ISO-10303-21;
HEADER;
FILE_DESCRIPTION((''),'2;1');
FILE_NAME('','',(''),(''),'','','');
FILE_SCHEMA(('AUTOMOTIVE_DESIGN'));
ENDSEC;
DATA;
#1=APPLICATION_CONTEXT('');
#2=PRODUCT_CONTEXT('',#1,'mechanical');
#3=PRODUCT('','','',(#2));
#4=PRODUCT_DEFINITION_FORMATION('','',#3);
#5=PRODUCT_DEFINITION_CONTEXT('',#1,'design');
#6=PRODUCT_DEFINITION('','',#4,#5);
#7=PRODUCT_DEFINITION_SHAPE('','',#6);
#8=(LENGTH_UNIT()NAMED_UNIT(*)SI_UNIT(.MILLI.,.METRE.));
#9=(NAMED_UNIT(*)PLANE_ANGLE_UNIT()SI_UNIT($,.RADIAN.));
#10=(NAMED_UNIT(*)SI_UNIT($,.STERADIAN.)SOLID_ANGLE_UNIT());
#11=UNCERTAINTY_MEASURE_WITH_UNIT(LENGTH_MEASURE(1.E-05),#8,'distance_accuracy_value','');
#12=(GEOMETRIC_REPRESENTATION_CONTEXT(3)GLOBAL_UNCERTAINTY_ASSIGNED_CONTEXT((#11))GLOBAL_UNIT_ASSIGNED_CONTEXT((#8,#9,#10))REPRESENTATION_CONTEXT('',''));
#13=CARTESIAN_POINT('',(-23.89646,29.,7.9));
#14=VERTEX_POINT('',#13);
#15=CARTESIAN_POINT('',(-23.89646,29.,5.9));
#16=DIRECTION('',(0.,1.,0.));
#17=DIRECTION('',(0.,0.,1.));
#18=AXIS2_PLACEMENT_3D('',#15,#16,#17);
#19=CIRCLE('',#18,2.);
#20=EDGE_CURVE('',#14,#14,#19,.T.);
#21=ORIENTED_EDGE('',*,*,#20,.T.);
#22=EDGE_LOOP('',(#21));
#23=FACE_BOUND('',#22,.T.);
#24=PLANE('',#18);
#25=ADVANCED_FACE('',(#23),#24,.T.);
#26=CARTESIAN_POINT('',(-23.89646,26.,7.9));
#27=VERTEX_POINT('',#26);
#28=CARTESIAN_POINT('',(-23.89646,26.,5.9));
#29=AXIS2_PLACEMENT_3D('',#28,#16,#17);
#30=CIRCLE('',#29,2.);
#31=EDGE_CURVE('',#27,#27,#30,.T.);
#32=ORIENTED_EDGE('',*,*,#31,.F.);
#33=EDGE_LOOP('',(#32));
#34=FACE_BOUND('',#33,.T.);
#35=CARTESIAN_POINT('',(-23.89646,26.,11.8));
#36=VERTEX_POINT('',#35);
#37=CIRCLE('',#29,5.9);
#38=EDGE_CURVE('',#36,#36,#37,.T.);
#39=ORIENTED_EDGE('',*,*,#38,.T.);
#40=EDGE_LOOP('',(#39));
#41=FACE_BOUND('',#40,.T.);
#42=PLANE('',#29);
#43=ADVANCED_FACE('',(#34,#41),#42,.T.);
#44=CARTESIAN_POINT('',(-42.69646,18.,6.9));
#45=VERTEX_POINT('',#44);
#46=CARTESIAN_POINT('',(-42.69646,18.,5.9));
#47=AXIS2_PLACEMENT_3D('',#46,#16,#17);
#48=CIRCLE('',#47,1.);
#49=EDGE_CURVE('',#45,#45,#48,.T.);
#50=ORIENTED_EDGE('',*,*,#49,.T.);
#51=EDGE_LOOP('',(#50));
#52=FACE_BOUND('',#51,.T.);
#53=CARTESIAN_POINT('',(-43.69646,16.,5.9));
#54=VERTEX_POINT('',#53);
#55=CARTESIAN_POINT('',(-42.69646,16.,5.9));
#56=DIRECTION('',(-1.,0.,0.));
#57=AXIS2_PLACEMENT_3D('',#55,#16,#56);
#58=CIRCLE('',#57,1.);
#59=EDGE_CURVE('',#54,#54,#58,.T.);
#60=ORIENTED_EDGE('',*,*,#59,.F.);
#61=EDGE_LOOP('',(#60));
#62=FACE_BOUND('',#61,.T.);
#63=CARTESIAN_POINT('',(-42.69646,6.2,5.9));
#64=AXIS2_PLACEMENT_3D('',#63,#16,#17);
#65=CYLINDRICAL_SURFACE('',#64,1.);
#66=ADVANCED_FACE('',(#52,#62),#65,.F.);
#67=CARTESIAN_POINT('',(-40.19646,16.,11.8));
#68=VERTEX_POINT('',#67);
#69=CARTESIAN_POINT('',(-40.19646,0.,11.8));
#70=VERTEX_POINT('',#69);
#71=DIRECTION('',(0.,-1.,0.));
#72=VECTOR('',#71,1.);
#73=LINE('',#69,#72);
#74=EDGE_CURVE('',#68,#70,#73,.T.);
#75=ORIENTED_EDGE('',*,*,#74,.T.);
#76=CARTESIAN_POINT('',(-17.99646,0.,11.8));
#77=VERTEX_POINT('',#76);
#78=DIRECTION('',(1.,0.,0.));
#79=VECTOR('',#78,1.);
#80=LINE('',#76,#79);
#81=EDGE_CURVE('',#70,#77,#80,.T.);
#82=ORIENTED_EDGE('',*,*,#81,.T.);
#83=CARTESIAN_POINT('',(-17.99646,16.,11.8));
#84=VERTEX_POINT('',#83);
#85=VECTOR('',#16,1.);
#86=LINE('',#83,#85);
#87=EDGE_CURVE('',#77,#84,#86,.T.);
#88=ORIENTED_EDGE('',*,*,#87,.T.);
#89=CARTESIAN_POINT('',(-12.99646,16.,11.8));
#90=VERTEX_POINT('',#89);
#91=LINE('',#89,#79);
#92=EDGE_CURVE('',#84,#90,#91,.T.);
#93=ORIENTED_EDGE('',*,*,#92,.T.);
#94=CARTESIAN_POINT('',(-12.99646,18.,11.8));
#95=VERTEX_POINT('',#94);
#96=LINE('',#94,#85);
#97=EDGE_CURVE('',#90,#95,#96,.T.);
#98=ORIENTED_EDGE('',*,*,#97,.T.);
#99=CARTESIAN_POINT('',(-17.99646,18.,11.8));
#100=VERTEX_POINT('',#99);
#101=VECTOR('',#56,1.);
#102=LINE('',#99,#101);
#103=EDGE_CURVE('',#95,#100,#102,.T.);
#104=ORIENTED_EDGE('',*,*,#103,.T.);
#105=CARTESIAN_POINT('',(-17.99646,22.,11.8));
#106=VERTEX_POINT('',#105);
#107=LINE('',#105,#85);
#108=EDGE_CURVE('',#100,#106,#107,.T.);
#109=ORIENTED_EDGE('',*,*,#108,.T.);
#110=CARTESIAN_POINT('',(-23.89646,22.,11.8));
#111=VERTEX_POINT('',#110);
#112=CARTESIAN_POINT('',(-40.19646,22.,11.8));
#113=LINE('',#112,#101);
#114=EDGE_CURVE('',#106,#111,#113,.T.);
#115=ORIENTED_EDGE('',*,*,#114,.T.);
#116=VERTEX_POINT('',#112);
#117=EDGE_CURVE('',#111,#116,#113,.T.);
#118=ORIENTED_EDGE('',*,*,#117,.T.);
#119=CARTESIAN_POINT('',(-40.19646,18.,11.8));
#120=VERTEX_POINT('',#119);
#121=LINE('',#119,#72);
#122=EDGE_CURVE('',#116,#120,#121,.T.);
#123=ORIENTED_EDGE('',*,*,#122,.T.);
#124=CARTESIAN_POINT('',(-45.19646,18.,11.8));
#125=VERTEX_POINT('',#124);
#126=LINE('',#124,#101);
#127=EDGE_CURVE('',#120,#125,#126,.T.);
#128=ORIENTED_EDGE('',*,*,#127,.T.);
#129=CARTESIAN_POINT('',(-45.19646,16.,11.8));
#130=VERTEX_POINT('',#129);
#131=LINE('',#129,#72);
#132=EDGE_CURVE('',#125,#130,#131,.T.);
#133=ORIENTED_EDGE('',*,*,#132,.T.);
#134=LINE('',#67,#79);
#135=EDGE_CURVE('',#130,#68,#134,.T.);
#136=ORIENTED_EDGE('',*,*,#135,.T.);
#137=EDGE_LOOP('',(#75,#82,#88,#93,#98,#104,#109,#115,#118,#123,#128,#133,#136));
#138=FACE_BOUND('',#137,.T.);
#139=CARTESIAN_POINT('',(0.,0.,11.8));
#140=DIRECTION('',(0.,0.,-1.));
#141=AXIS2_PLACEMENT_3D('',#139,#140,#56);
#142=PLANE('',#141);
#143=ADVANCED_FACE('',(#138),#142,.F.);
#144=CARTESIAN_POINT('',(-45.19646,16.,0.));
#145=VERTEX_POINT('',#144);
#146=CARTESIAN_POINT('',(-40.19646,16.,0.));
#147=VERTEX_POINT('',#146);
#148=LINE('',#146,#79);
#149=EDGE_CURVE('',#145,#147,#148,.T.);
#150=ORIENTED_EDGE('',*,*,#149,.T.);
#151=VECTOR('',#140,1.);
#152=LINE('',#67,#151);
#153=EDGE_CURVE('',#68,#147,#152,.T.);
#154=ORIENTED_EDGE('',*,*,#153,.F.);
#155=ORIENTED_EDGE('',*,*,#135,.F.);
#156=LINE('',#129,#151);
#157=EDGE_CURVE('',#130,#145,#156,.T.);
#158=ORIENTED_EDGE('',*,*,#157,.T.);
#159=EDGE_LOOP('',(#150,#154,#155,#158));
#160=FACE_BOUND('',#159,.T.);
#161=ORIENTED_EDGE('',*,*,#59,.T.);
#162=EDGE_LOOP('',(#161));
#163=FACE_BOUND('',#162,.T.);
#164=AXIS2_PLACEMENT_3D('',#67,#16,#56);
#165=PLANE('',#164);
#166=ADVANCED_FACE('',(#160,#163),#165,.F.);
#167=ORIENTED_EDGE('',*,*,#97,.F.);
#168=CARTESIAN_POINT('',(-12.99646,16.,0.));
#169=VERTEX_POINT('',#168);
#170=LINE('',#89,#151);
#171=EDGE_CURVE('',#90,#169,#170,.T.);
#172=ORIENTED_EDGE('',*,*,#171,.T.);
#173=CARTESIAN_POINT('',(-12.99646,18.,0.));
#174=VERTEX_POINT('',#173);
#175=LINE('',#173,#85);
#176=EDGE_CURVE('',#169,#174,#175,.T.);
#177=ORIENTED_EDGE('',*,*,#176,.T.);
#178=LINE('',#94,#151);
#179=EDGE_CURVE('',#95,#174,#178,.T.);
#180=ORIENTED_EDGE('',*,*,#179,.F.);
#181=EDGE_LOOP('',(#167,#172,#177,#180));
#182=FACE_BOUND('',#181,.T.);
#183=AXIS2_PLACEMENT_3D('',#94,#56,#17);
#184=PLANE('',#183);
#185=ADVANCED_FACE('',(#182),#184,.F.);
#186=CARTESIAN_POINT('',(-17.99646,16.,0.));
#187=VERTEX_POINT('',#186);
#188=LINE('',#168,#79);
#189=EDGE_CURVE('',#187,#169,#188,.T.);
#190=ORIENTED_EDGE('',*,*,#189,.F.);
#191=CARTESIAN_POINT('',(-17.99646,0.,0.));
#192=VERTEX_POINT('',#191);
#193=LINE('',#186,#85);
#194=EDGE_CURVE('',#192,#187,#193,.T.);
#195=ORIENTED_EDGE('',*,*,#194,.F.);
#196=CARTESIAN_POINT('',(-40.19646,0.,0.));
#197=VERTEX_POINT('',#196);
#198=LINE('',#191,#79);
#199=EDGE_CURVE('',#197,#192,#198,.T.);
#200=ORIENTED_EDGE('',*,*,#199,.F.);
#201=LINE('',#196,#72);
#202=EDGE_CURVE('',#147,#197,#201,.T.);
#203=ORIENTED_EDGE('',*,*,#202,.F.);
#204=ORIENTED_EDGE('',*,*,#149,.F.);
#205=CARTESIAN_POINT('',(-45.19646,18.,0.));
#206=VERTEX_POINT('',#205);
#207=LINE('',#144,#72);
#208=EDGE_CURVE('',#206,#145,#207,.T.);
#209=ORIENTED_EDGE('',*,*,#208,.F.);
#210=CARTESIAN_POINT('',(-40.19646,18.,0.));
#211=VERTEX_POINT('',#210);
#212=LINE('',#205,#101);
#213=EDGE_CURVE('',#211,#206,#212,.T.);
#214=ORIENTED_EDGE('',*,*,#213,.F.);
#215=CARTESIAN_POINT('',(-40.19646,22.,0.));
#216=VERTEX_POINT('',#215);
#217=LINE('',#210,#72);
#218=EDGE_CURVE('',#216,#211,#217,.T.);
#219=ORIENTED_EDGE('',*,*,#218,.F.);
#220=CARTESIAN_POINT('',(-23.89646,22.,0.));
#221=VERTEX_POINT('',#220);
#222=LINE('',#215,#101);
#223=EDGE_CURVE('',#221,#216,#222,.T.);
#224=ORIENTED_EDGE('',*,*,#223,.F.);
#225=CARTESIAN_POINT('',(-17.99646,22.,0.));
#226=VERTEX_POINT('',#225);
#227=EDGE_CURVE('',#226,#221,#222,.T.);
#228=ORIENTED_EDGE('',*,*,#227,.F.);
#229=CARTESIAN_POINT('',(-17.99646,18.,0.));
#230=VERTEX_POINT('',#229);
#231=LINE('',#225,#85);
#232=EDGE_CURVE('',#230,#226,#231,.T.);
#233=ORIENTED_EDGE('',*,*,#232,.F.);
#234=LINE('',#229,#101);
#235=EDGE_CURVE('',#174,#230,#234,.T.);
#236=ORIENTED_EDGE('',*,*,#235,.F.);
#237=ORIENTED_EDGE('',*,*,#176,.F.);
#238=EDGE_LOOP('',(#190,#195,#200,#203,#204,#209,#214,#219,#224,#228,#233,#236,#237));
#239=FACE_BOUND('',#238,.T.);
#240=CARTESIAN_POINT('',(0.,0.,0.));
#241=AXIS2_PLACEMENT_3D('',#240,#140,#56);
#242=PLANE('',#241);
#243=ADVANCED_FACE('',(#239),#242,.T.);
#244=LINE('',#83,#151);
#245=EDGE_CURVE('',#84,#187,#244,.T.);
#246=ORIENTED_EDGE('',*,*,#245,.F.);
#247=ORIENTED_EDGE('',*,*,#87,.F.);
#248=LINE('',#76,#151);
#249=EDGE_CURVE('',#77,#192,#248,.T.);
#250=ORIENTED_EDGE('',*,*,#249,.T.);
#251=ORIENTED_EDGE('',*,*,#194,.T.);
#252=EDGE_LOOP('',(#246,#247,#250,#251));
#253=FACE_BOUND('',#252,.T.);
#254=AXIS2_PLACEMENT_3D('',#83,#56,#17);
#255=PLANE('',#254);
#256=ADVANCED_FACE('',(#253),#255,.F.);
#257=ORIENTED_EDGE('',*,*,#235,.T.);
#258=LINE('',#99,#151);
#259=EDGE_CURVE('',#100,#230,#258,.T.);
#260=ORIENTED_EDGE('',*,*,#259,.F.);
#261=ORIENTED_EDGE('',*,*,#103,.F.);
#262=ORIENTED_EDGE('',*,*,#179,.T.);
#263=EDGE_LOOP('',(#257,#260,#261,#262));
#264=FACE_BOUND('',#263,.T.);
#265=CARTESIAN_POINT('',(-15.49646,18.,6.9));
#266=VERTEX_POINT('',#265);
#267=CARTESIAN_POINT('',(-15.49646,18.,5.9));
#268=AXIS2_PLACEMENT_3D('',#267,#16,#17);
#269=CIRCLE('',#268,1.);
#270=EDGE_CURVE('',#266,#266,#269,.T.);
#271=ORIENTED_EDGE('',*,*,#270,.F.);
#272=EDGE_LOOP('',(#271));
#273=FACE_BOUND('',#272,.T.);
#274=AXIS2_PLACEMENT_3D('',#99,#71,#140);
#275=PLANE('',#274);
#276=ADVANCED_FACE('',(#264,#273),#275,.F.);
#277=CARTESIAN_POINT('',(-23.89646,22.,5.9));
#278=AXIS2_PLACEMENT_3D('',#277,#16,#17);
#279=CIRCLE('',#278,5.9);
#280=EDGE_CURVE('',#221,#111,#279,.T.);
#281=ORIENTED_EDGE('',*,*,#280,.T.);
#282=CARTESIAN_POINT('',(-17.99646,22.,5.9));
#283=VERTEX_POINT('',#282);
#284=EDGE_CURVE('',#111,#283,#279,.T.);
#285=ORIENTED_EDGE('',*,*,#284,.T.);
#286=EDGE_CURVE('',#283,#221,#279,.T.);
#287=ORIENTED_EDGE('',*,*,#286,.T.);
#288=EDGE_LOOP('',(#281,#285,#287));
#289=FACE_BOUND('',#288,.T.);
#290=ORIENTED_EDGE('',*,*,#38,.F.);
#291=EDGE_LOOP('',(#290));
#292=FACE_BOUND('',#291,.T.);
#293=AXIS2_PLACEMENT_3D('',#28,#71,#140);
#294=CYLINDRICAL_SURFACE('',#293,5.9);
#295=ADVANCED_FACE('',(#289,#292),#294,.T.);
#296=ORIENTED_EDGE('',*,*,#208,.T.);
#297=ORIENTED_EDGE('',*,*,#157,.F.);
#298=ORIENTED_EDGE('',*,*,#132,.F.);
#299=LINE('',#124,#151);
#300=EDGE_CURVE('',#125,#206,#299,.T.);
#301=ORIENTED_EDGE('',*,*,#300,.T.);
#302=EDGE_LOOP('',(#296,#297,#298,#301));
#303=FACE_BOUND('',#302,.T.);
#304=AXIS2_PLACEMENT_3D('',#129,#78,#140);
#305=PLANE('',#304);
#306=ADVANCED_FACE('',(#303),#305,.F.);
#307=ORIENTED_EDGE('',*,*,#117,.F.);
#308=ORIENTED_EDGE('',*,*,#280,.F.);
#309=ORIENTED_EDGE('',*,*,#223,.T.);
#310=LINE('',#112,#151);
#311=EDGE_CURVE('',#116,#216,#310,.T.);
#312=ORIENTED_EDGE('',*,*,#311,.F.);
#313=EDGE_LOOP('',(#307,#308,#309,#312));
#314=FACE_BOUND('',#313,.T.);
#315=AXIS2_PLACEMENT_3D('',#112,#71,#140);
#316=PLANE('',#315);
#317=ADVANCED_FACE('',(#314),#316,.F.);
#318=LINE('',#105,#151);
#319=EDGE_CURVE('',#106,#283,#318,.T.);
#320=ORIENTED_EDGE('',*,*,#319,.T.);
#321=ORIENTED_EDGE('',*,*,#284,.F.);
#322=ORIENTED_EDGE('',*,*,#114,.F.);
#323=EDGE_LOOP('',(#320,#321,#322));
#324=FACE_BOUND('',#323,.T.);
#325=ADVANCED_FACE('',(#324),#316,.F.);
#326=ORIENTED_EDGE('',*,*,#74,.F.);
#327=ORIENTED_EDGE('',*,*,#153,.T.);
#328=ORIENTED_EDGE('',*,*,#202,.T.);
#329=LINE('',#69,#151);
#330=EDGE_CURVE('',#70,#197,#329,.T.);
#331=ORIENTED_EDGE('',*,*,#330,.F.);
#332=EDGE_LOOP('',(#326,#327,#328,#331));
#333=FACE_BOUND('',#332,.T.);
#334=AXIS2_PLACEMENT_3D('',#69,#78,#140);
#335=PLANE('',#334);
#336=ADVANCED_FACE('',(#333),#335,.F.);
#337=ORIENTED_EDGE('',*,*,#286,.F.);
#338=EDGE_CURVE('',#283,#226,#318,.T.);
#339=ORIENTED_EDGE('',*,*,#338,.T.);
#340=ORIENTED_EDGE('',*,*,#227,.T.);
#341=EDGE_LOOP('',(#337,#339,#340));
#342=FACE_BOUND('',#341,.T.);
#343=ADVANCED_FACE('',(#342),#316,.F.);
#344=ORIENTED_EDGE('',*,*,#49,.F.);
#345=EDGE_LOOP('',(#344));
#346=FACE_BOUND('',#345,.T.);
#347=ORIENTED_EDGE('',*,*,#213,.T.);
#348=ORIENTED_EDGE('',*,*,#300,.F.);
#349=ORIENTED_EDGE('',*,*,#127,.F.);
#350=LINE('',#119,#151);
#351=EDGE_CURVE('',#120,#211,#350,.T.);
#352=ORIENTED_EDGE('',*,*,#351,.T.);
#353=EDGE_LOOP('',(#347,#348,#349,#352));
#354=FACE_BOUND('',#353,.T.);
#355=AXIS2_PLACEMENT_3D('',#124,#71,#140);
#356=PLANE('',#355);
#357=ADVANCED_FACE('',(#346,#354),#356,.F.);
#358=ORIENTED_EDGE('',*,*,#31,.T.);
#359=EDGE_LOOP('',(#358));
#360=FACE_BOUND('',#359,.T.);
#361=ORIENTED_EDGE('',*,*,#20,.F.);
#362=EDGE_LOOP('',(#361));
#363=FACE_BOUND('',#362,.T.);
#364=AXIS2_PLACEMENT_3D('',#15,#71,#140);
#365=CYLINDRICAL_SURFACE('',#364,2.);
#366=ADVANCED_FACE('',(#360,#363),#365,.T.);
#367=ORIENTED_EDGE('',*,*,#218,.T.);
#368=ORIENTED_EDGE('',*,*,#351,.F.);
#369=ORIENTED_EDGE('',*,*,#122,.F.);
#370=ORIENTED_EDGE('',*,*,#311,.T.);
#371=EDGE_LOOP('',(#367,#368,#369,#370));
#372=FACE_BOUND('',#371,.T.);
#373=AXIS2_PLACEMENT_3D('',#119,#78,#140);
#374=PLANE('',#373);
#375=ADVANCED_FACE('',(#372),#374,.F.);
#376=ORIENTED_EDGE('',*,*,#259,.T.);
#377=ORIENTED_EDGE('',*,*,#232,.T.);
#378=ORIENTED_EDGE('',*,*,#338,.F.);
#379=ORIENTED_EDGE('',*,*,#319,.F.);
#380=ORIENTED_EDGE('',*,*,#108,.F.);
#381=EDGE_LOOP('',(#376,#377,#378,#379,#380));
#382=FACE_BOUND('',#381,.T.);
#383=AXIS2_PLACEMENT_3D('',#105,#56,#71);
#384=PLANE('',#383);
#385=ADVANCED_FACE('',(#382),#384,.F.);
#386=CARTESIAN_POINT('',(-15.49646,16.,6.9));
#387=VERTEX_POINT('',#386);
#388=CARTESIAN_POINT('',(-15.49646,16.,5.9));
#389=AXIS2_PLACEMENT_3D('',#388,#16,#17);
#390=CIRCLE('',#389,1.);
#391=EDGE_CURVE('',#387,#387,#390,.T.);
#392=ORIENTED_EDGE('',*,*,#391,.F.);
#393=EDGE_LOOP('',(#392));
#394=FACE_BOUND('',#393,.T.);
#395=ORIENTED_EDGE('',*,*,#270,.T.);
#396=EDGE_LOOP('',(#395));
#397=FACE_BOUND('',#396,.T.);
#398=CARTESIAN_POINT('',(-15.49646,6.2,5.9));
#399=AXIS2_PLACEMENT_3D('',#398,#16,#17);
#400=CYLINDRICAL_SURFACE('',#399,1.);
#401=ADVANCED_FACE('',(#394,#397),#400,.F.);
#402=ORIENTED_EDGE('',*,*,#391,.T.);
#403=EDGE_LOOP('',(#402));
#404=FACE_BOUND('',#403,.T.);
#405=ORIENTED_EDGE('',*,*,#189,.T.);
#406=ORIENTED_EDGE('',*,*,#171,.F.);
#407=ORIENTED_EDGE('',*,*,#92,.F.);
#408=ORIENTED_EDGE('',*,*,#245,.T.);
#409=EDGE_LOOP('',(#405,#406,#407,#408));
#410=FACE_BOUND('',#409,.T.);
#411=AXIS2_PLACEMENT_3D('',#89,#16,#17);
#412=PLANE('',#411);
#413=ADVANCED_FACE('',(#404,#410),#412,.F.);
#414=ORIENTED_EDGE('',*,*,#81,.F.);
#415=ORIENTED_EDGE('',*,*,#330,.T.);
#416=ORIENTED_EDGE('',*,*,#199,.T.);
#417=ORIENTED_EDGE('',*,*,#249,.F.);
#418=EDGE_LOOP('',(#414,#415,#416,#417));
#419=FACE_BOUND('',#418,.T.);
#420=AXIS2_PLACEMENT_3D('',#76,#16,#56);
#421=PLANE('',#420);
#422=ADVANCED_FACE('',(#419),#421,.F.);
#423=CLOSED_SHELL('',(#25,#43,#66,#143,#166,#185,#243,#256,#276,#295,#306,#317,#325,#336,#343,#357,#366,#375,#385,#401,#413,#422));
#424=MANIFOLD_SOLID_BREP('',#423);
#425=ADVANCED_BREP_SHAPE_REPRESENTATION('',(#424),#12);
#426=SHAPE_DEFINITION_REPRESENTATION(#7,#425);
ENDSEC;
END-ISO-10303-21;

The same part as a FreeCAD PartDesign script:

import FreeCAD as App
import Part
import Sketcher
Q = App.Units.Quantity


def add_polygon(sketch, points):
    """Adds a closed chain of lines whose ends are joined by coincident constraints."""
    first, n = sketch.GeometryCount, len(points)
    for a, b in zip(points, points[1:] + points[:1]):
        sketch.addGeometry(Part.LineSegment(App.Vector(*a, 0), App.Vector(*b, 0)), False)
    for i in range(n):
        sketch.addConstraint(Sketcher.Constraint("Coincident", first + i, 2, first + (i + 1) % n, 1))

doc = App.newDocument("Part")
body = doc.addObject("PartDesign::Body", "Body")

# Sketch on XY plane
sketch1 = doc.addObject("Sketcher::SketchObject", "Sketch")
body.addObject(sketch1)
sketch1.AttachmentSupport = (doc.XY_Plane, [""])
sketch1.MapMode = "FlatFace"
add_polygon(sketch1, [(-40.19646, 18), (-45.19646, 18), (-45.19646, 16), (-40.19646, 16), (-40.19646, 0), (-17.99646, 0), (-17.99646, 16), (-12.99646, 16), (-12.99646, 18), (-17.99646, 18), (-17.99646, 22), (-40.19646, 22)])  # lines 0-11
sketch1.addConstraint([
    Sketcher.Constraint("Horizontal", 0),
    Sketcher.Constraint("Vertical", 1),
    Sketcher.Constraint("Horizontal", 2),
    Sketcher.Constraint("Vertical", 3),
    Sketcher.Constraint("Horizontal", 4),
    Sketcher.Constraint("Vertical", 5),
    Sketcher.Constraint("Horizontal", 6),
    Sketcher.Constraint("Vertical", 7),
    Sketcher.Constraint("Horizontal", 8),
    Sketcher.Constraint("Vertical", 9),
    Sketcher.Constraint("Horizontal", 10),
    Sketcher.Constraint("Vertical", 11),
    Sketcher.Constraint("PointOnObject", 3, 2, -1),
    Sketcher.Constraint("Horizontal", 2, 2, 5, 2),
    Sketcher.Constraint("Horizontal", 0, 2, 7, 2),
    Sketcher.Constraint("Vertical", 5, 2, 8, 2),
    Sketcher.Constraint("Vertical", 3, 2, 10, 2),
    Sketcher.Constraint("Equal", 2, 6),
    Sketcher.Constraint("DistanceX", 0, 2, 0, 1, Q("5 mm")),
    Sketcher.Constraint("DistanceY", 1, 2, 1, 1, Q("2 mm")),
    Sketcher.Constraint("DistanceY", 3, 2, 3, 1, Q("16 mm")),
    Sketcher.Constraint("DistanceY", 9, 1, 9, 2, Q("4 mm")),
    Sketcher.Constraint("DistanceX", 4, 1, 4, 2, Q("22.2 mm")),
    Sketcher.Constraint("DistanceX", 0, 2, -1, 1, Q("45.19646 mm")),
])
pad1 = doc.addObject("PartDesign::Pad", "Pad")
body.addObject(pad1)
pad1.Profile = sketch1
pad1.Length = 11.8

# Sketch on XZ plane
sketch2 = doc.addObject("Sketcher::SketchObject", "Sketch001")
body.addObject(sketch2)
sketch2.AttachmentSupport = (doc.XZ_Plane, [""])
sketch2.MapMode = "FlatFace"
sketch2.AttachmentOffset = App.Placement(App.Vector(0, 0, -18), App.Rotation())
sketch2.addGeometry([
    Part.Circle(App.Vector(-42.69646, 5.9, 0), App.Vector(0, 0, 1), 1),
    Part.Circle(App.Vector(-15.49646, 5.9, 0), App.Vector(0, 0, 1), 1),
], False)
sketch2.addConstraint([
    Sketcher.Constraint("Equal", 0, 1),
    Sketcher.Constraint("Horizontal", 0, 3, 1, 3),
    Sketcher.Constraint("Diameter", 0, Q("2 mm")),
    Sketcher.Constraint("DistanceY", -1, 1, 0, 3, Q("5.9 mm")),
    Sketcher.Constraint("DistanceX", 0, 3, 1, 3, Q("27.2 mm")),
    Sketcher.Constraint("DistanceX", 0, 3, -1, 1, Q("42.69646 mm")),
])
pocket1 = doc.addObject("PartDesign::Pocket", "Pocket")
body.addObject(pocket1)
pocket1.Profile = sketch2
pocket1.Length = 11.8
pocket1.Reversed = True

# Sketch on XZ plane
sketch3 = doc.addObject("Sketcher::SketchObject", "Sketch002")
body.addObject(sketch3)
sketch3.AttachmentSupport = (doc.XZ_Plane, [""])
sketch3.MapMode = "FlatFace"
sketch3.AttachmentOffset = App.Placement(App.Vector(0, 0, -22), App.Rotation())
sketch3.addGeometry(Part.Circle(App.Vector(-23.89646, 5.9, 0), App.Vector(0, 0, 1), 5.9), False)
sketch3.addConstraint([
    Sketcher.Constraint("Diameter", 0, Q("11.8 mm")),
    Sketcher.Constraint("DistanceY", -1, 1, 0, 3, Q("5.9 mm")),
    Sketcher.Constraint("DistanceX", 0, 3, -1, 1, Q("23.89646 mm")),
])
pad2 = doc.addObject("PartDesign::Pad", "Pad001")
body.addObject(pad2)
pad2.Profile = sketch3
pad2.Length = 4
pad2.Reversed = True

# Sketch on XZ plane
sketch4 = doc.addObject("Sketcher::SketchObject", "Sketch003")
body.addObject(sketch4)
sketch4.AttachmentSupport = (doc.XZ_Plane, [""])
sketch4.MapMode = "FlatFace"
sketch4.AttachmentOffset = App.Placement(App.Vector(0, 0, -26), App.Rotation())
sketch4.addGeometry(Part.Circle(App.Vector(-23.89646, 5.9, 0), App.Vector(0, 0, 1), 2), False)
sketch4.addConstraint([
    Sketcher.Constraint("Diameter", 0, Q("4 mm")),
    Sketcher.Constraint("DistanceY", -1, 1, 0, 3, Q("5.9 mm")),
    Sketcher.Constraint("DistanceX", 0, 3, -1, 1, Q("23.89646 mm")),
])
pad3 = doc.addObject("PartDesign::Pad", "Pad002")
body.addObject(pad3)
pad3.Profile = sketch4
pad3.Length = 3
pad3.Reversed = True

# Sketch on YZ plane
sketch5 = doc.addObject("Sketcher::SketchObject", "Sketch004")
body.addObject(sketch5)
sketch5.AttachmentSupport = (doc.YZ_Plane, [""])
sketch5.MapMode = "FlatFace"
sketch5.AttachmentOffset = App.Placement(App.Vector(0, 0, -17.99646), App.Rotation())
add_polygon(sketch5, [(7, 8.3), (3, 8.3), (3, 3.3), (7, 3.3)])  # lines 0-3
sketch5.addConstraint([
    Sketcher.Constraint("Horizontal", 0),
    Sketcher.Constraint("Vertical", 1),
    Sketcher.Constraint("Horizontal", 2),
    Sketcher.Constraint("Vertical", 3),
    Sketcher.Constraint("DistanceX", 0, 2, 0, 1, Q("4 mm")),
    Sketcher.Constraint("DistanceY", 1, 2, 1, 1, Q("5 mm")),
    Sketcher.Constraint("DistanceX", -1, 1, 0, 2, Q("3 mm")),
    Sketcher.Constraint("DistanceY", -1, 1, 0, 2, Q("8.3 mm")),
])
pad4 = doc.addObject("PartDesign::Pad", "Pad003")
body.addObject(pad4)
pad4.Profile = sketch5
pad4.Length = 3

# Sketch on XZ plane
sketch6 = doc.addObject("Sketcher::SketchObject", "Sketch005")
body.addObject(sketch6)
sketch6.AttachmentSupport = (doc.XZ_Plane, [""])
sketch6.MapMode = "FlatFace"
sketch6.AttachmentOffset = App.Placement(App.Vector(0, 0, -7), App.Rotation())
add_polygon(sketch6, [(-17.99646, 3.3), (-17.99646, 8.3), (-14.99646, 8.3), (-14.99646, 3.3)])  # lines 0-3
sketch6.addConstraint([
    Sketcher.Constraint("Vertical", 0),
    Sketcher.Constraint("Horizontal", 1),
    Sketcher.Constraint("Vertical", 2),
    Sketcher.Constraint("Horizontal", 3),
    Sketcher.Constraint("DistanceX", 1, 1, 1, 2, Q("3 mm")),
    Sketcher.Constraint("DistanceY", 0, 1, 0, 2, Q("5 mm")),
    Sketcher.Constraint("DistanceY", -1, 1, 0, 2, Q("8.3 mm")),
    Sketcher.Constraint("DistanceX", 0, 2, -1, 1, Q("17.99646 mm")),
])
pocket2 = doc.addObject("PartDesign::Pocket", "Pocket001")
body.addObject(pocket2)
pocket2.Profile = sketch6
pocket2.Length = 10
pocket2.Reversed = True

doc.recompute()
